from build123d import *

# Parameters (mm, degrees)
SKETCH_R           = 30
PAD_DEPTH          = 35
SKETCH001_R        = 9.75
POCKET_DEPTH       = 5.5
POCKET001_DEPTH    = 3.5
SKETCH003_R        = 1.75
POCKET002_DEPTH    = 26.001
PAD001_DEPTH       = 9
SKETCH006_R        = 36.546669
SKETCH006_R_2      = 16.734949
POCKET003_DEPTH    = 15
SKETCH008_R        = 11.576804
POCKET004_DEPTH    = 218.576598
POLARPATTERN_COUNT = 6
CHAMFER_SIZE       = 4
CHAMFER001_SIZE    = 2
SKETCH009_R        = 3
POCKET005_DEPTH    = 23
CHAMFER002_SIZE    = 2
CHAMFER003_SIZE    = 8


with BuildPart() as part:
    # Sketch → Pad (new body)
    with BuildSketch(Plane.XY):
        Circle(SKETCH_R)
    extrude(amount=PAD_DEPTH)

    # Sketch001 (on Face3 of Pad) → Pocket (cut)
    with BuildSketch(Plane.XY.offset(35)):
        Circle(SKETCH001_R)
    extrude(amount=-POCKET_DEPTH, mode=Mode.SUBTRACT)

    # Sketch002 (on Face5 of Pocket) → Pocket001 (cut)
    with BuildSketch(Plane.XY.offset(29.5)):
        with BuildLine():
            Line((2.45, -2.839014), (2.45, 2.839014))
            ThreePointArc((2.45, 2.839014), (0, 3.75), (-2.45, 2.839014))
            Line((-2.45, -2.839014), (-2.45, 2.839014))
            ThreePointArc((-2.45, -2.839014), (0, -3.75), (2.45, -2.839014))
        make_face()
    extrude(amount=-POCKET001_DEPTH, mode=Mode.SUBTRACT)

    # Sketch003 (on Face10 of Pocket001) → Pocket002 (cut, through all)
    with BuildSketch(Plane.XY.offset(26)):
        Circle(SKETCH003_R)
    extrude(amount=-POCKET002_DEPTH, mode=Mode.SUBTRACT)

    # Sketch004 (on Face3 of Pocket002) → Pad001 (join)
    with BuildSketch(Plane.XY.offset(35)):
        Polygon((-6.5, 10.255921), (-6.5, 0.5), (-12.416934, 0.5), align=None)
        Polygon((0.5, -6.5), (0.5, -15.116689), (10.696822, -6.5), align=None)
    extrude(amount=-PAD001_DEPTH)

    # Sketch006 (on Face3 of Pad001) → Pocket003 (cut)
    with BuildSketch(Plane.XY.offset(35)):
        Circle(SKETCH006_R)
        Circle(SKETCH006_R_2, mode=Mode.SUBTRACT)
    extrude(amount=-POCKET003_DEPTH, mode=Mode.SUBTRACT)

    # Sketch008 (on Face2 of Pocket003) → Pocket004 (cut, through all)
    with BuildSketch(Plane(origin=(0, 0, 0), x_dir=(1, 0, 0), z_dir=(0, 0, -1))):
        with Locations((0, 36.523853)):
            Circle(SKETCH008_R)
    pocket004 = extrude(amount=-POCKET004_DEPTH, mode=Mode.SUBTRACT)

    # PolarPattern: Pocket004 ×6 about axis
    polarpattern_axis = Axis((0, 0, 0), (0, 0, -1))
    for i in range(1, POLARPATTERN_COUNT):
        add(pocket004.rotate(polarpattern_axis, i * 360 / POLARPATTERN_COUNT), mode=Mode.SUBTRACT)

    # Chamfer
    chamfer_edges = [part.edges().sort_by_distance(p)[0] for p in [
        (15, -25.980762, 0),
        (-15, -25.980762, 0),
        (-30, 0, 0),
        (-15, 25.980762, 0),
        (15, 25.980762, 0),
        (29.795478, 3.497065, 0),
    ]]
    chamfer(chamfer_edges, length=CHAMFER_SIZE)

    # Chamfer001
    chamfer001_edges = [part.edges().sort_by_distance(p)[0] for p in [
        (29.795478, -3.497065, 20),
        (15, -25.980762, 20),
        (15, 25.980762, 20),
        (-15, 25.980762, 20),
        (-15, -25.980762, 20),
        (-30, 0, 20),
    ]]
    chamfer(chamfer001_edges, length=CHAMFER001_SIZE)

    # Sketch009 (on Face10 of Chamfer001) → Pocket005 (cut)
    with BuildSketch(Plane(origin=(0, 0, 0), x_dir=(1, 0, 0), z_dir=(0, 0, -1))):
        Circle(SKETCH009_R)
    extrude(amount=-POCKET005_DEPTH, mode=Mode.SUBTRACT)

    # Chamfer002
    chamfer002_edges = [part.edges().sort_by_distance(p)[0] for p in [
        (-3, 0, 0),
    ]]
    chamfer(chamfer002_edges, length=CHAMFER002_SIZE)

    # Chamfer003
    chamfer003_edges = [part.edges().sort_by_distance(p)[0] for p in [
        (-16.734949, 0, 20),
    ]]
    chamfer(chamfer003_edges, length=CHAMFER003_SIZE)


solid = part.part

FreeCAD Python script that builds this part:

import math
import FreeCAD as App
import Part
import Sketcher

V = App.Vector


def edges_at(feature, points):
    """Names of the edges that pass closest to the given points."""
    edges = feature.Shape.Edges
    near = lambda p: min(range(len(edges)), key=lambda i: edges[i].distToShape(Part.Vertex(*p))[0])
    return sorted({f"Edge{near(p) + 1}" for p in points})

doc = App.newDocument("Part")
params = doc.addObject("Spreadsheet::Sheet", "Params")
for row, (alias, value) in enumerate([
    ("sketch1_diameter", "60 mm"),
    ("pad1_length", "35 mm"),
    ("sketch2_diameter", "19.5 mm"),
    ("pocket1_length", "5.5 mm"),
    ("sketch3_radius", "3.75 mm"),
    ("pocket2_length", "3.5 mm"),
    ("sketch4_diameter", "3.5 mm"),
    ("sketch5_length", "11.41 mm"),
    ("sketch5_length2", "13.35 mm"),
    ("pad2_length", "9 mm"),
    ("pocket4_length", "15 mm"),
    ("chamfer_size", "4 mm"),
    ("chamfer2_size", "2 mm"),
    ("sketch8_diameter", "6 mm"),
    ("pocket6_length", "23 mm"),
    ("chamfer3_size", "2 mm"),
    ("chamfer4_size", "8 mm"),
], start=1):
    params.set(f"A{row}", alias)
    params.set(f"B{row}", "=" + value)
    params.setAlias(f"B{row}", alias)

body = doc.addObject("PartDesign::Body", "Body")

# Sketch on XY plane
sketch1 = body.newObject("Sketcher::SketchObject", "Sketch")
sketch1.AttachmentSupport = (doc.getObject("XY_Plane"), [""])
sketch1.MapMode = "FlatFace"
sketch1.addGeometry(Part.Circle(V(0, 0, 0), V(0, 0, 1), 30), False)
sketch1.addConstraint([
    Sketcher.Constraint("Coincident", 0, 3, -1, 1),
    Sketcher.Constraint("Diameter", 0, 60.0),
])
sketch1.setExpression("Constraints[1]", "Params.sketch1_diameter")
pad1 = body.newObject("PartDesign::Pad", "Pad")
pad1.Profile = sketch1
pad1.setExpression("Length", "Params.pad1_length")

# Sketch on XY plane
sketch2 = body.newObject("Sketcher::SketchObject", "Sketch001")
sketch2.AttachmentSupport = (doc.getObject("XY_Plane"), [""])
sketch2.MapMode = "FlatFace"
sketch2.AttachmentOffset = App.Placement(V(0, 0, 35), App.Rotation())
sketch2.addGeometry(Part.Circle(V(0, 0, 0), V(0, 0, 1), 10), False)
sketch2.addConstraint([
    Sketcher.Constraint("Coincident", 0, 3, -1, 1),
    Sketcher.Constraint("Diameter", 0, 19.5),
])
sketch2.setExpression("Constraints[1]", "Params.sketch2_diameter")
pocket1 = body.newObject("PartDesign::Pocket", "Pocket")
pocket1.Profile = sketch2
pocket1.setExpression("Length", "Params.pocket1_length")

# Sketch on XY plane
sketch3 = body.newObject("Sketcher::SketchObject", "Sketch002")
sketch3.AttachmentSupport = (doc.getObject("XY_Plane"), [""])
sketch3.MapMode = "FlatFace"
sketch3.AttachmentOffset = App.Placement(V(0, 0, 29.5), App.Rotation())
sketch3.addGeometry([
    Part.LineSegment(V(2.5, -2.8, 0), V(2.5, 2.8, 0)),
    Part.ArcOfCircle(Part.Circle(V(0, 0, 0), V(0, 0, 1), 3.8), math.radians(49), math.radians(131)),
    Part.LineSegment(V(-2.5, 2.8, 0), V(-2.5, -2.8, 0)),
    Part.ArcOfCircle(Part.Circle(V(0, 0, 0), V(0, 0, 1), 3.8), math.radians(-131), math.radians(-49)),
], False)
sketch3.addConstraint([
    Sketcher.Constraint("Coincident", 0, 2, 1, 1),
    Sketcher.Constraint("Coincident", 1, 2, 2, 1),
    Sketcher.Constraint("Coincident", 2, 2, 3, 1),
    Sketcher.Constraint("Coincident", 3, 2, 0, 1),
    Sketcher.Constraint("Vertical", 0),
    Sketcher.Constraint("Vertical", 2),
    Sketcher.Constraint("Coincident", 1, 3, -1, 1),
    Sketcher.Constraint("Coincident", 3, 3, -1, 1),
    Sketcher.Constraint("Equal", 1, 3),
    Sketcher.Constraint("Horizontal", 0, 2, 1, 2),
    Sketcher.Constraint("Radius", 1, 3.75),
    Sketcher.Constraint("DistanceX", 1, 2, 0, 2, 4.9),
])
sketch3.setExpression("Constraints[10]", "Params.sketch3_radius")
pocket2 = body.newObject("PartDesign::Pocket", "Pocket001")
pocket2.Profile = sketch3
pocket2.setExpression("Length", "Params.pocket2_length")

# Sketch on XY plane
sketch4 = body.newObject("Sketcher::SketchObject", "Sketch003")
sketch4.AttachmentSupport = (doc.getObject("XY_Plane"), [""])
sketch4.MapMode = "FlatFace"
sketch4.AttachmentOffset = App.Placement(V(0, 0, 26), App.Rotation())
sketch4.addGeometry(Part.Circle(V(0, 0, 0), V(0, 0, 1), 1.8), False)
sketch4.addConstraint([
    Sketcher.Constraint("Coincident", 0, 3, -1, 1),
    Sketcher.Constraint("Diameter", 0, 3.5),
])
sketch4.setExpression("Constraints[1]", "Params.sketch4_diameter")
pocket3 = body.newObject("PartDesign::Pocket", "Pocket002")
pocket3.Profile = sketch4
pocket3.Type = "ThroughAll"

# Sketch on XY plane
sketch5 = body.newObject("Sketcher::SketchObject", "Sketch004")
sketch5.AttachmentSupport = (doc.getObject("XY_Plane"), [""])
sketch5.MapMode = "FlatFace"
sketch5.AttachmentOffset = App.Placement(V(0, 0, 35), App.Rotation())
sketch5.addGeometry([
    Part.LineSegment(V(-6, 0, 0), V(-6, 10, 0)),  # 0
    Part.LineSegment(V(-6, 10, 0), V(-12, 0, 0)),  # 1
    Part.LineSegment(V(-12, 0, 0), V(-6, 0, 0)),  # 2
    Part.LineSegment(V(0, -6, 0), V(0, -15, 0)),  # 3
    Part.LineSegment(V(0, -15, 0), V(11, -6, 0)),  # 4
    Part.LineSegment(V(11, -6, 0), V(0, -6, 0)),  # 5
], False)
sketch5.addConstraint([
    Sketcher.Constraint("Coincident", 0, 2, 1, 1),
    Sketcher.Constraint("Coincident", 1, 2, 2, 1),
    Sketcher.Constraint("Coincident", 2, 2, 0, 1),
    Sketcher.Constraint("Coincident", 3, 2, 4, 1),
    Sketcher.Constraint("Coincident", 4, 2, 5, 1),
    Sketcher.Constraint("Coincident", 5, 2, 3, 1),
    Sketcher.Constraint("Vertical", 0),
    Sketcher.Constraint("Horizontal", 2),
    Sketcher.Constraint("Vertical", 3),
    Sketcher.Constraint("Horizontal", 5),
    Sketcher.Constraint("DistanceX", 2, 2, 3, 2, 7.0),
    Sketcher.Constraint("DistanceY", 4, 2, 2, 2, 7.0),
    Sketcher.Constraint("DistanceX", 0, 2, -1, 1, 6.5),
    Sketcher.Constraint("DistanceY", -1, 1, 1, 2, 0.5),
    Sketcher.Constraint("Distance", 1, 11.41),
    Sketcher.Constraint("Distance", 4, 13.35),
    Sketcher.Constraint("DistanceX", 5, 2, 5, 1, 10.196822),
    Sketcher.Constraint("DistanceY", 0, 1, 0, 2, 9.755921),
])
sketch5.setExpression("Constraints[14]", "Params.sketch5_length")
sketch5.setExpression("Constraints[15]", "Params.sketch5_length2")
pad2 = body.newObject("PartDesign::Pad", "Pad001")
pad2.Profile = sketch5
pad2.setExpression("Length", "Params.pad2_length")
pad2.Reversed = True

# Sketch on XY plane
sketch6 = body.newObject("Sketcher::SketchObject", "Sketch005")
sketch6.AttachmentSupport = (doc.getObject("XY_Plane"), [""])
sketch6.MapMode = "FlatFace"
sketch6.AttachmentOffset = App.Placement(V(0, 0, 35), App.Rotation())
sketch6.addGeometry([
    Part.Circle(V(0, 0, 0), V(0, 0, 1), 37),
    Part.Circle(V(0, 0, 0), V(0, 0, 1), 17),
], False)
sketch6.addConstraint([
    Sketcher.Constraint("Coincident", 0, 3, -1, 1),
    Sketcher.Constraint("Coincident", 1, 3, -1, 1),
    Sketcher.Constraint("Diameter", 0, 73.093338),
    Sketcher.Constraint("Diameter", 1, 33.469898),
])
pocket4 = body.newObject("PartDesign::Pocket", "Pocket003")
pocket4.Profile = sketch6
pocket4.setExpression("Length", "Params.pocket4_length")

# Sketch on XY plane
sketch7 = body.newObject("Sketcher::SketchObject", "Sketch006")
sketch7.AttachmentSupport = (doc.getObject("XY_Plane"), [""])
sketch7.MapMode = "FlatFace"
sketch7.addGeometry(Part.Circle(V(0, -37, 0), V(0, 0, 1), 12), False)
sketch7.addConstraint([
    Sketcher.Constraint("PointOnObject", 0, 3, -2),
    Sketcher.Constraint("Diameter", 0, 23.153608),
    Sketcher.Constraint("DistanceY", 0, 3, -1, 1, 36.523853),
])
pocket5 = body.newObject("PartDesign::Pocket", "Pocket004")
pocket5.Profile = sketch7
pocket5.Type = "ThroughAll"
pocket5.Reversed = True
doc.recompute()

polarpattern = body.newObject("PartDesign::PolarPattern", "PolarPattern")
polarpattern.Originals = [pocket5]
polarpattern.Axis = (doc.getObject("Z_Axis"), [""])
polarpattern.Angle = 360
polarpattern.Occurrences = 6
body.Tip = polarpattern
doc.recompute()

chamfer = body.newObject("PartDesign::Chamfer", "Chamfer")
chamfer.Base = (polarpattern, edges_at(polarpattern, [
    (15, -25.981, 0),
    (-15, -25.981, 0),
    (-30, 0, 0),
    (-15, 25.981, 0),
    (15, 25.981, 0),
    (30, 0, 0),
]))
chamfer.setExpression("Size", "Params.chamfer_size")
doc.recompute()

chamfer2 = body.newObject("PartDesign::Chamfer", "Chamfer001")
chamfer2.Base = (chamfer, edges_at(chamfer, [
    (30, 0, 20),
    (15, -25.981, 20),
    (15, 25.981, 20),
    (-15, 25.981, 20),
    (-15, -25.981, 20),
    (-30, 0, 20),
]))
chamfer2.setExpression("Size", "Params.chamfer2_size")

# Sketch on XY plane
sketch8 = body.newObject("Sketcher::SketchObject", "Sketch007")
sketch8.AttachmentSupport = (doc.getObject("XY_Plane"), [""])
sketch8.MapMode = "FlatFace"
sketch8.addGeometry(Part.Circle(V(0, 0, 0), V(0, 0, 1), 3), False)
sketch8.addConstraint([
    Sketcher.Constraint("Coincident", 0, 3, -1, 1),
    Sketcher.Constraint("Diameter", 0, 6.0),
])
sketch8.setExpression("Constraints[1]", "Params.sketch8_diameter")
pocket6 = body.newObject("PartDesign::Pocket", "Pocket005")
pocket6.Profile = sketch8
pocket6.setExpression("Length", "Params.pocket6_length")
pocket6.Reversed = True
doc.recompute()

chamfer3 = body.newObject("PartDesign::Chamfer", "Chamfer002")
chamfer3.Base = (pocket6, edges_at(pocket6, [(-3, 0, 0)]))
chamfer3.setExpression("Size", "Params.chamfer3_size")
doc.recompute()

chamfer4 = body.newObject("PartDesign::Chamfer", "Chamfer003")
chamfer4.Base = (chamfer3, edges_at(chamfer3, [(-16.735, 0, 20)]))
chamfer4.setExpression("Size", "Params.chamfer4_size")

doc.recompute()
